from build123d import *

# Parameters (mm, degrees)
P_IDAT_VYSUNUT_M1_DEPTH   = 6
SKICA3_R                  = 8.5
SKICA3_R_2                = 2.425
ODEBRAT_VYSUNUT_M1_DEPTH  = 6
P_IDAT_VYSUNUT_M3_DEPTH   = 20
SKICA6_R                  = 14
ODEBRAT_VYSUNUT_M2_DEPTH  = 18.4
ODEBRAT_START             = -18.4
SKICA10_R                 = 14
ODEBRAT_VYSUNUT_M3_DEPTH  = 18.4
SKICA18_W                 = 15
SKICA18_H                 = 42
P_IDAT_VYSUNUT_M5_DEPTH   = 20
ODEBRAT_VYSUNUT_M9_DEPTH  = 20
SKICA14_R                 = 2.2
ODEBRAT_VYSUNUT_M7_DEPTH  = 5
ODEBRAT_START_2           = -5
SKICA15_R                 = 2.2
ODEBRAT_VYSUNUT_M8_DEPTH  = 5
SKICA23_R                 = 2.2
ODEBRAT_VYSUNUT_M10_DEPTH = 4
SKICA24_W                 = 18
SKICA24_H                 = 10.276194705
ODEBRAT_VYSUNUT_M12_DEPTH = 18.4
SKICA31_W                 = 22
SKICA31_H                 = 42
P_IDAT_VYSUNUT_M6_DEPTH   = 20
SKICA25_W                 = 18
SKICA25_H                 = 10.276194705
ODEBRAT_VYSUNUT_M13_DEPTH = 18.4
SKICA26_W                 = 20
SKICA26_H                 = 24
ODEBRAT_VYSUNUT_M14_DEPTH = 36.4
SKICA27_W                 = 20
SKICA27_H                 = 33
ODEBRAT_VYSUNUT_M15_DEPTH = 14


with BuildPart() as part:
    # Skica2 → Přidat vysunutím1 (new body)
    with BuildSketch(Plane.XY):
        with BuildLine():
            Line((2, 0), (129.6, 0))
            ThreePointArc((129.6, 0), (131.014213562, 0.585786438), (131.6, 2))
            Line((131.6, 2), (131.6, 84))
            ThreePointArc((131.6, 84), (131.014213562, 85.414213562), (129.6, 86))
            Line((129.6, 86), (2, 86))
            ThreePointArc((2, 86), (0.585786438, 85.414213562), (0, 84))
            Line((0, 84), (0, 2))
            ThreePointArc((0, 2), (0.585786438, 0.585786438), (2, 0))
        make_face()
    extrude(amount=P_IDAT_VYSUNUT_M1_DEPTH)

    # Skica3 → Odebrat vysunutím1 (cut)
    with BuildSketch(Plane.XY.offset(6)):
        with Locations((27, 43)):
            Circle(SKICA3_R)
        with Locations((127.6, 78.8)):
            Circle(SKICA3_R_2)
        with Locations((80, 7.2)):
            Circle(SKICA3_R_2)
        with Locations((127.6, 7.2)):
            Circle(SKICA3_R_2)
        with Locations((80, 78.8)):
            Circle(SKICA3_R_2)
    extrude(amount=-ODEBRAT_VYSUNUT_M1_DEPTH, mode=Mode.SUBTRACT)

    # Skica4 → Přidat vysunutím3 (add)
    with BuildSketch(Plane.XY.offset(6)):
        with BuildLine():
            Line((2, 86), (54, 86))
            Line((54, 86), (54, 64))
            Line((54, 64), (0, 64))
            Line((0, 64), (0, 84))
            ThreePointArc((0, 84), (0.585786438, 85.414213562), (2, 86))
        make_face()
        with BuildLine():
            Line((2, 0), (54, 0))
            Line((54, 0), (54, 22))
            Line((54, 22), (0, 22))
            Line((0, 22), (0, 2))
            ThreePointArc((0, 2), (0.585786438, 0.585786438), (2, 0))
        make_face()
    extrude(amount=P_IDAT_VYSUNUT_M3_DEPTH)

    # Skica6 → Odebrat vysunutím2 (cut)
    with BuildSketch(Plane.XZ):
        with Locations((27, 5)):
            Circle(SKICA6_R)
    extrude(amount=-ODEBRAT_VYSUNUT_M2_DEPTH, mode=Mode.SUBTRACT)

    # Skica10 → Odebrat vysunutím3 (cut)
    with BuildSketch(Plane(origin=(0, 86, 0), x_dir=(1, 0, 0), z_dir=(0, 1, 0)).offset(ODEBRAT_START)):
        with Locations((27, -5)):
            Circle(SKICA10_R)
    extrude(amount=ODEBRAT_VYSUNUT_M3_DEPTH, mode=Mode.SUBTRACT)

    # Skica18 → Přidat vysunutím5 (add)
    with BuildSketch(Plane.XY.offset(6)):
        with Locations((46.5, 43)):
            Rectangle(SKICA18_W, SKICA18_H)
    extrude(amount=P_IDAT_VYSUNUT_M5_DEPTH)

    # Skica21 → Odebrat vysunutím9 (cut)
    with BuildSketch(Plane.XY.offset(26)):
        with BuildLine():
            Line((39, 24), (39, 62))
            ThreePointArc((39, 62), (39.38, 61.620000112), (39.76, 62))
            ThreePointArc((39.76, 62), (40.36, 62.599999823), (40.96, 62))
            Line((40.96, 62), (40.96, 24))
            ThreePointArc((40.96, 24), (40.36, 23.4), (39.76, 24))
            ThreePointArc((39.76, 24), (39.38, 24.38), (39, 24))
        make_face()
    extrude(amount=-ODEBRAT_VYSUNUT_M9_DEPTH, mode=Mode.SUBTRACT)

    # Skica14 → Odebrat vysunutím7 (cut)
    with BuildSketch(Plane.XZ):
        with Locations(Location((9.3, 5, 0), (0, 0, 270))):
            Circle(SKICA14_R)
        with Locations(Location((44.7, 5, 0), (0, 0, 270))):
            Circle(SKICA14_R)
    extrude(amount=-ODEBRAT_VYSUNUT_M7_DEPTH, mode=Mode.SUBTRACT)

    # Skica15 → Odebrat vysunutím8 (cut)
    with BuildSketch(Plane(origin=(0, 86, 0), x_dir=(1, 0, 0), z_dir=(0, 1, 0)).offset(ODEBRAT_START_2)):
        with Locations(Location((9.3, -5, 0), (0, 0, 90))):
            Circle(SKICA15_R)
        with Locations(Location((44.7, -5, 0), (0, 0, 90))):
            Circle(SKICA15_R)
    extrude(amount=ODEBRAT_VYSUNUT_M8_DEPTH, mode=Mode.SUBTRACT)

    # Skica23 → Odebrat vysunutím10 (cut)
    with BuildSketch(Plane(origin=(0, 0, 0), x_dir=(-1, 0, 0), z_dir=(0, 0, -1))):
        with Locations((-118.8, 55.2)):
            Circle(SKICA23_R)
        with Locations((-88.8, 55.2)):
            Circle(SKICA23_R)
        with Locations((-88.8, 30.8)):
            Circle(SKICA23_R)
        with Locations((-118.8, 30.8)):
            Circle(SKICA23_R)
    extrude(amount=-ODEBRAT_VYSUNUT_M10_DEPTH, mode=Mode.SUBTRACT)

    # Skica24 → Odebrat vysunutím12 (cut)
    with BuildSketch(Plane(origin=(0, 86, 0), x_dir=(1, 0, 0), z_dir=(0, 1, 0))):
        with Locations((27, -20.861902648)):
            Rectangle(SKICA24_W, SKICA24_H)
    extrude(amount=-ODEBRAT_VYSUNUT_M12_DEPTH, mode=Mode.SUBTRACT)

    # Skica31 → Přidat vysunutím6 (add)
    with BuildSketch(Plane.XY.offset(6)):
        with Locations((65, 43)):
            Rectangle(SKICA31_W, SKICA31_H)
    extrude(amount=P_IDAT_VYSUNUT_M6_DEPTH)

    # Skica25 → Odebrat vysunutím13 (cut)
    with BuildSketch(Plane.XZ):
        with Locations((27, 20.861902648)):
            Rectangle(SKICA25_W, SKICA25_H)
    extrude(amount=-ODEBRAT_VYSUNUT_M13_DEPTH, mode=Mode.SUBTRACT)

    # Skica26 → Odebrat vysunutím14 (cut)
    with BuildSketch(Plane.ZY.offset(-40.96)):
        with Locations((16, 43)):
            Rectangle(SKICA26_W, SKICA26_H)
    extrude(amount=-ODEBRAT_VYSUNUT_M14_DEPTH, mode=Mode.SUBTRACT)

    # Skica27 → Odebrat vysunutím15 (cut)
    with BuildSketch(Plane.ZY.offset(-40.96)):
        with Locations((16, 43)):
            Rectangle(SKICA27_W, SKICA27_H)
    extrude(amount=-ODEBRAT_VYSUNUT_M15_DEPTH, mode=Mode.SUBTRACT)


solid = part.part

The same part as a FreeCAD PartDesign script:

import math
import FreeCAD as App
import Part
import Sketcher
from FreeCAD import Vector
Q = App.Units.Quantity

doc = App.newDocument("Part")
body = doc.addObject("PartDesign::Body", "Body")

# Sketch on XY plane
sketch1 = body.newObject("Sketcher::SketchObject", "Sketch")
sketch1.AttachmentSupport = (doc.getObject("XY_Plane"), [""])
sketch1.MapMode = "FlatFace"
sketch1.addGeometry(Part.LineSegment(Vector(2, 0, 0), Vector(129.6, 0, 0)), False)
sketch1.addGeometry(Part.ArcOfCircle(Part.Circle(Vector(129.6, 2, 0), Vector(0, 0, 1), 2), math.radians(-90), math.radians(0)), False)
sketch1.addGeometry(Part.LineSegment(Vector(131.6, 2, 0), Vector(131.6, 84, 0)), False)
sketch1.addGeometry(Part.ArcOfCircle(Part.Circle(Vector(129.6, 84, 0), Vector(0, 0, 1), 2), math.radians(0), math.radians(90)), False)
sketch1.addGeometry(Part.LineSegment(Vector(129.6, 86, 0), Vector(2, 86, 0)), False)
sketch1.addGeometry(Part.ArcOfCircle(Part.Circle(Vector(2, 84, 0), Vector(0, 0, 1), 2), math.radians(90), math.radians(180)), False)
sketch1.addGeometry(Part.LineSegment(Vector(0, 84, 0), Vector(0, 2, 0)), False)
sketch1.addGeometry(Part.ArcOfCircle(Part.Circle(Vector(2, 2, 0), Vector(0, 0, 1), 2), math.radians(-180), math.radians(-90)), False)
sketch1.addConstraint(Sketcher.Constraint("Tangent", 0, 2, 1, 1))
sketch1.addConstraint(Sketcher.Constraint("Tangent", 1, 2, 2, 1))
sketch1.addConstraint(Sketcher.Constraint("Tangent", 2, 2, 3, 1))
sketch1.addConstraint(Sketcher.Constraint("Tangent", 3, 2, 4, 1))
sketch1.addConstraint(Sketcher.Constraint("Tangent", 4, 2, 5, 1))
sketch1.addConstraint(Sketcher.Constraint("Tangent", 5, 2, 6, 1))
sketch1.addConstraint(Sketcher.Constraint("Tangent", 6, 2, 7, 1))
sketch1.addConstraint(Sketcher.Constraint("Tangent", 7, 2, 0, 1))
sketch1.addConstraint(Sketcher.Constraint("Horizontal", 0))
sketch1.addConstraint(Sketcher.Constraint("Vertical", 2))
sketch1.addConstraint(Sketcher.Constraint("Horizontal", 4))
sketch1.addConstraint(Sketcher.Constraint("Vertical", 6))
sketch1.addConstraint(Sketcher.Constraint("Equal", 1, 3))
sketch1.addConstraint(Sketcher.Constraint("Equal", 3, 5))
sketch1.addConstraint(Sketcher.Constraint("Equal", 5, 7))
sketch1.addConstraint(Sketcher.Constraint("PointOnObject", 0, 2, -1))
sketch1.addConstraint(Sketcher.Constraint("PointOnObject", 5, 2, -2))
sketch1.addConstraint(Sketcher.Constraint("Radius", 1, Q("2 mm")))
sketch1.addConstraint(Sketcher.Constraint("DistanceY", 2, 1, 2, 2, Q("82 mm")))
sketch1.addConstraint(Sketcher.Constraint("DistanceX", 0, 1, 0, 2, Q("127.6 mm")))
pad1 = body.newObject("PartDesign::Pad", "Pad")
pad1.Profile = sketch1
pad1.Length = 6

# Sketch on XY plane
sketch2 = body.newObject("Sketcher::SketchObject", "Sketch001")
sketch2.AttachmentSupport = (doc.getObject("XY_Plane"), [""])
sketch2.MapMode = "FlatFace"
sketch2.AttachmentOffset = App.Placement(Vector(0, 0, 6), App.Rotation())
sketch2.addGeometry(Part.Circle(Vector(27, 43, 0), Vector(0, 0, 1), 8.5), False)
sketch2.addGeometry(Part.Circle(Vector(127.6, 78.8, 0), Vector(0, 0, 1), 2.4), False)
sketch2.addGeometry(Part.Circle(Vector(80, 7.2, 0), Vector(0, 0, 1), 2.4), False)
sketch2.addGeometry(Part.Circle(Vector(127.6, 7.2, 0), Vector(0, 0, 1), 2.4), False)
sketch2.addGeometry(Part.Circle(Vector(80, 78.8, 0), Vector(0, 0, 1), 2.4), False)
sketch2.addConstraint(Sketcher.Constraint("Equal", 1, 2))
sketch2.addConstraint(Sketcher.Constraint("Equal", 2, 3))
sketch2.addConstraint(Sketcher.Constraint("Equal", 3, 4))
sketch2.addConstraint(Sketcher.Constraint("Horizontal", 2, 3, 3, 3))
sketch2.addConstraint(Sketcher.Constraint("Horizontal", 1, 3, 4, 3))
sketch2.addConstraint(Sketcher.Constraint("Vertical", 1, 3, 3, 3))
sketch2.addConstraint(Sketcher.Constraint("Vertical", 2, 3, 4, 3))
sketch2.addConstraint(Sketcher.Constraint("Diameter", 0, Q("17 mm")))
sketch2.addConstraint(Sketcher.Constraint("Diameter", 1, Q("4.85 mm")))
sketch2.addConstraint(Sketcher.Constraint("DistanceX", -1, 1, 0, 3, Q("27 mm")))
sketch2.addConstraint(Sketcher.Constraint("DistanceY", -1, 1, 0, 3, Q("43 mm")))
sketch2.addConstraint(Sketcher.Constraint("DistanceX", -1, 1, 2, 3, Q("80 mm")))
sketch2.addConstraint(Sketcher.Constraint("DistanceX", -1, 1, 1, 3, Q("127.6 mm")))
sketch2.addConstraint(Sketcher.Constraint("DistanceY", -1, 1, 1, 3, Q("78.8 mm")))
sketch2.addConstraint(Sketcher.Constraint("DistanceY", -1, 1, 2, 3, Q("7.2 mm")))
pocket1 = body.newObject("PartDesign::Pocket", "Pocket")
pocket1.Profile = sketch2
pocket1.Length = 6

# Sketch on XY plane
sketch3 = body.newObject("Sketcher::SketchObject", "Sketch002")
sketch3.AttachmentSupport = (doc.getObject("XY_Plane"), [""])
sketch3.MapMode = "FlatFace"
sketch3.AttachmentOffset = App.Placement(Vector(0, 0, 6), App.Rotation())
sketch3.addGeometry(Part.LineSegment(Vector(54, 86, 0), Vector(2, 86, 0)), False)
sketch3.addGeometry(Part.ArcOfCircle(Part.Circle(Vector(2, 84, 0), Vector(0, 0, 1), 2), math.radians(90), math.radians(180)), False)
sketch3.addGeometry(Part.LineSegment(Vector(0, 84, 0), Vector(0, 64, 0)), False)
sketch3.addGeometry(Part.LineSegment(Vector(0, 64, 0), Vector(54, 64, 0)), False)
sketch3.addGeometry(Part.LineSegment(Vector(54, 64, 0), Vector(54, 86, 0)), False)
sketch3.addGeometry(Part.LineSegment(Vector(2, 0, 0), Vector(54, 0, 0)), False)
sketch3.addGeometry(Part.LineSegment(Vector(54, 0, 0), Vector(54, 22, 0)), False)
sketch3.addGeometry(Part.LineSegment(Vector(54, 22, 0), Vector(0, 22, 0)), False)
sketch3.addGeometry(Part.LineSegment(Vector(0, 22, 0), Vector(0, 2, 0)), False)
sketch3.addGeometry(Part.ArcOfCircle(Part.Circle(Vector(2, 2, 0), Vector(0, 0, 1), 2), math.radians(-180), math.radians(-90)), False)
sketch3.addConstraint(Sketcher.Constraint("Tangent", 0, 2, 1, 1))
sketch3.addConstraint(Sketcher.Constraint("Tangent", 1, 2, 2, 1))
sketch3.addConstraint(Sketcher.Constraint("Coincident", 2, 2, 3, 1))
sketch3.addConstraint(Sketcher.Constraint("Coincident", 3, 2, 4, 1))
sketch3.addConstraint(Sketcher.Constraint("Coincident", 4, 2, 0, 1))
sketch3.addConstraint(Sketcher.Constraint("Coincident", 5, 2, 6, 1))
sketch3.addConstraint(Sketcher.Constraint("Coincident", 6, 2, 7, 1))
sketch3.addConstraint(Sketcher.Constraint("Coincident", 7, 2, 8, 1))
sketch3.addConstraint(Sketcher.Constraint("Tangent", 8, 2, 9, 1))
sketch3.addConstraint(Sketcher.Constraint("Tangent", 9, 2, 5, 1))
sketch3.addConstraint(Sketcher.Constraint("Horizontal", 0))
sketch3.addConstraint(Sketcher.Constraint("Vertical", 2))
sketch3.addConstraint(Sketcher.Constraint("Horizontal", 3))
sketch3.addConstraint(Sketcher.Constraint("Vertical", 4))
sketch3.addConstraint(Sketcher.Constraint("Horizontal", 5))
sketch3.addConstraint(Sketcher.Constraint("Vertical", 6))
sketch3.addConstraint(Sketcher.Constraint("Horizontal", 7))
sketch3.addConstraint(Sketcher.Constraint("Vertical", 8))
sketch3.addConstraint(Sketcher.Constraint("Equal", 1, 9))
sketch3.addConstraint(Sketcher.Constraint("PointOnObject", 1, 2, -2))
sketch3.addConstraint(Sketcher.Constraint("PointOnObject", 5, 2, -1))
sketch3.addConstraint(Sketcher.Constraint("PointOnObject", 7, 2, -2))
sketch3.addConstraint(Sketcher.Constraint("Vertical", 4, 2, 5, 2))
sketch3.addConstraint(Sketcher.Constraint("Equal", 4, 6))
sketch3.addConstraint(Sketcher.Constraint("Radius", 1, Q("2 mm")))
sketch3.addConstraint(Sketcher.Constraint("DistanceX", 0, 2, 0, 1, Q("52 mm")))
sketch3.addConstraint(Sketcher.Constraint("DistanceY", 2, 2, 2, 1, Q("20 mm")))
sketch3.addConstraint(Sketcher.Constraint("DistanceY", -1, 1, 1, 3, Q("84 mm")))
pad2 = body.newObject("PartDesign::Pad", "Pad001")
pad2.Profile = sketch3
pad2.Length = 20

# Sketch on XZ plane
sketch4 = body.newObject("Sketcher::SketchObject", "Sketch003")
sketch4.AttachmentSupport = (doc.getObject("XZ_Plane"), [""])
sketch4.MapMode = "FlatFace"
sketch4.addGeometry(Part.Circle(Vector(27, 5, 0), Vector(0, 0, 1), 14), False)
sketch4.addConstraint(Sketcher.Constraint("Diameter", 0, Q("28 mm")))
sketch4.addConstraint(Sketcher.Constraint("DistanceX", -1, 1, 0, 3, Q("27 mm")))
sketch4.addConstraint(Sketcher.Constraint("DistanceY", -1, 1, 0, 3, Q("5 mm")))
pocket2 = body.newObject("PartDesign::Pocket", "Pocket001")
pocket2.Profile = sketch4
pocket2.Length = 18.4

# Sketch on XZ plane
sketch5 = body.newObject("Sketcher::SketchObject", "Sketch004")
sketch5.AttachmentSupport = (doc.getObject("XZ_Plane"), [""])
sketch5.MapMode = "FlatFace"
sketch5.AttachmentOffset = App.Placement(Vector(0, 0, -67.6), App.Rotation())
sketch5.addGeometry(Part.Circle(Vector(27, 5, 0), Vector(0, 0, 1), 14), False)
sketch5.addConstraint(Sketcher.Constraint("Diameter", 0, Q("28 mm")))
sketch5.addConstraint(Sketcher.Constraint("DistanceX", -1, 1, 0, 3, Q("27 mm")))
sketch5.addConstraint(Sketcher.Constraint("DistanceY", -1, 1, 0, 3, Q("5 mm")))
pocket3 = body.newObject("PartDesign::Pocket", "Pocket002")
pocket3.Profile = sketch5
pocket3.Length = 18.4

# Sketch on XY plane
sketch6 = body.newObject("Sketcher::SketchObject", "Sketch005")
sketch6.AttachmentSupport = (doc.getObject("XY_Plane"), [""])
sketch6.MapMode = "FlatFace"
sketch6.AttachmentOffset = App.Placement(Vector(0, 0, 6), App.Rotation())
sketch6.addGeometry(Part.LineSegment(Vector(39, 64, 0), Vector(39, 22, 0)), False)
sketch6.addGeometry(Part.LineSegment(Vector(39, 22, 0), Vector(54, 22, 0)), False)
sketch6.addGeometry(Part.LineSegment(Vector(54, 22, 0), Vector(54, 64, 0)), False)
sketch6.addGeometry(Part.LineSegment(Vector(54, 64, 0), Vector(39, 64, 0)), False)
sketch6.addConstraint(Sketcher.Constraint("Coincident", 0, 2, 1, 1))
sketch6.addConstraint(Sketcher.Constraint("Coincident", 1, 2, 2, 1))
sketch6.addConstraint(Sketcher.Constraint("Coincident", 2, 2, 3, 1))
sketch6.addConstraint(Sketcher.Constraint("Coincident", 3, 2, 0, 1))
sketch6.addConstraint(Sketcher.Constraint("Vertical", 0))
sketch6.addConstraint(Sketcher.Constraint("Horizontal", 1))
sketch6.addConstraint(Sketcher.Constraint("Vertical", 2))
sketch6.addConstraint(Sketcher.Constraint("Horizontal", 3))
sketch6.addConstraint(Sketcher.Constraint("DistanceX", 1, 1, 1, 2, Q("15 mm")))
sketch6.addConstraint(Sketcher.Constraint("DistanceY", 0, 2, 0, 1, Q("42 mm")))
sketch6.addConstraint(Sketcher.Constraint("DistanceX", -1, 1, 0, 2, Q("39 mm")))
sketch6.addConstraint(Sketcher.Constraint("DistanceY", -1, 1, 0, 2, Q("22 mm")))
pad3 = body.newObject("PartDesign::Pad", "Pad002")
pad3.Profile = sketch6
pad3.Length = 20

# Sketch on XY plane
sketch7 = body.newObject("Sketcher::SketchObject", "Sketch006")
sketch7.AttachmentSupport = (doc.getObject("XY_Plane"), [""])
sketch7.MapMode = "FlatFace"
sketch7.AttachmentOffset = App.Placement(Vector(0, 0, 26), App.Rotation())
sketch7.addGeometry(Part.LineSegment(Vector(39, 62, 0), Vector(39, 24, 0)), False)
sketch7.addGeometry(Part.ArcOfCircle(Part.Circle(Vector(39.38, 24, 0), Vector(0, 0, 1), 0.38), math.radians(0), math.radians(180)), False)
sketch7.addGeometry(Part.ArcOfCircle(Part.Circle(Vector(40.36, 24, 0), Vector(0, 0, 1), 0.6), math.radians(180), math.radians(360)), False)
sketch7.addGeometry(Part.LineSegment(Vector(40.96, 24, 0), Vector(40.96, 62, 0)), False)
sketch7.addGeometry(Part.ArcOfCircle(Part.Circle(Vector(40.36, 62, 0), Vector(0, 0, 1), 0.6), math.radians(0), math.radians(180)), False)
sketch7.addGeometry(Part.ArcOfCircle(Part.Circle(Vector(39.38, 62, 0), Vector(0, 0, 1), 0.38), math.radians(-180), math.radians(0)), False)
sketch7.addConstraint(Sketcher.Constraint("Tangent", 0, 2, 1, 2))
sketch7.addConstraint(Sketcher.Constraint("Tangent", 1, 1, 2, 1))
sketch7.addConstraint(Sketcher.Constraint("Tangent", 2, 2, 3, 1))
sketch7.addConstraint(Sketcher.Constraint("Tangent", 3, 2, 4, 1))
sketch7.addConstraint(Sketcher.Constraint("Tangent", 4, 2, 5, 2))
sketch7.addConstraint(Sketcher.Constraint("Tangent", 5, 1, 0, 1))
sketch7.addConstraint(Sketcher.Constraint("Vertical", 0))
sketch7.addConstraint(Sketcher.Constraint("Vertical", 3))
sketch7.addConstraint(Sketcher.Constraint("Equal", 2, 4))
sketch7.addConstraint(Sketcher.Constraint("Horizontal", 1, 3, 2, 3))
sketch7.addConstraint(Sketcher.Constraint("Horizontal", 4, 3, 5, 3))
sketch7.addConstraint(Sketcher.Constraint("Radius", 2, Q("0.6 mm")))
sketch7.addConstraint(Sketcher.Constraint("DistanceY", 0, 2, 0, 1, Q("38 mm")))
sketch7.addConstraint(Sketcher.Constraint("Radius", 1, Q("0.38 mm")))
sketch7.addConstraint(Sketcher.Constraint("DistanceY", -1, 1, 1, 3, Q("24 mm")))
sketch7.addConstraint(Sketcher.Constraint("DistanceX", -1, 1, 0, 2, Q("39 mm")))
pocket4 = body.newObject("PartDesign::Pocket", "Pocket003")
pocket4.Profile = sketch7
pocket4.Length = 20

# Sketch on XZ plane
sketch8 = body.newObject("Sketcher::SketchObject", "Sketch007")
sketch8.AttachmentSupport = (doc.getObject("XZ_Plane"), [""])
sketch8.MapMode = "FlatFace"
sketch8.addGeometry(Part.Circle(Vector(9.3, 5, 0), Vector(0, 0, 1), 2.2), False)
sketch8.addGeometry(Part.Circle(Vector(44.7, 5, 0), Vector(0, 0, 1), 2.2), False)
sketch8.addConstraint(Sketcher.Constraint("Equal", 0, 1))
sketch8.addConstraint(Sketcher.Constraint("Horizontal", 0, 3, 1, 3))
sketch8.addConstraint(Sketcher.Constraint("Diameter", 0, Q("4.4 mm")))
sketch8.addConstraint(Sketcher.Constraint("DistanceY", -1, 1, 0, 3, Q("5 mm")))
sketch8.addConstraint(Sketcher.Constraint("DistanceX", -1, 1, 0, 3, Q("9.3 mm")))
sketch8.addConstraint(Sketcher.Constraint("DistanceX", -1, 1, 1, 3, Q("44.7 mm")))
pocket5 = body.newObject("PartDesign::Pocket", "Pocket004")
pocket5.Profile = sketch8
pocket5.Length = 5

# Sketch on XZ plane
sketch9 = body.newObject("Sketcher::SketchObject", "Sketch008")
sketch9.AttachmentSupport = (doc.getObject("XZ_Plane"), [""])
sketch9.MapMode = "FlatFace"
sketch9.AttachmentOffset = App.Placement(Vector(0, 0, -81), App.Rotation())
sketch9.addGeometry(Part.Circle(Vector(9.3, 5, 0), Vector(0, 0, 1), 2.2), False)
sketch9.addGeometry(Part.Circle(Vector(44.7, 5, 0), Vector(0, 0, 1), 2.2), False)
sketch9.addConstraint(Sketcher.Constraint("Equal", 0, 1))
sketch9.addConstraint(Sketcher.Constraint("Horizontal", 0, 3, 1, 3))
sketch9.addConstraint(Sketcher.Constraint("Diameter", 0, Q("4.4 mm")))
sketch9.addConstraint(Sketcher.Constraint("DistanceY", -1, 1, 0, 3, Q("5 mm")))
sketch9.addConstraint(Sketcher.Constraint("DistanceX", -1, 1, 0, 3, Q("9.3 mm")))
sketch9.addConstraint(Sketcher.Constraint("DistanceX", -1, 1, 1, 3, Q("44.7 mm")))
pocket6 = body.newObject("PartDesign::Pocket", "Pocket005")
pocket6.Profile = sketch9
pocket6.Length = 5

# Sketch on XY plane
sketch10 = body.newObject("Sketcher::SketchObject", "Sketch009")
sketch10.AttachmentSupport = (doc.getObject("XY_Plane"), [""])
sketch10.MapMode = "FlatFace"
sketch10.addGeometry(Part.Circle(Vector(118.8, 55.2, 0), Vector(0, 0, 1), 2.2), False)
sketch10.addGeometry(Part.Circle(Vector(88.8, 55.2, 0), Vector(0, 0, 1), 2.2), False)
sketch10.addGeometry(Part.Circle(Vector(88.8, 30.8, 0), Vector(0, 0, 1), 2.2), False)
sketch10.addGeometry(Part.Circle(Vector(118.8, 30.8, 0), Vector(0, 0, 1), 2.2), False)
sketch10.addConstraint(Sketcher.Constraint("Equal", 0, 1))
sketch10.addConstraint(Sketcher.Constraint("Equal", 1, 2))
sketch10.addConstraint(Sketcher.Constraint("Equal", 2, 3))
sketch10.addConstraint(Sketcher.Constraint("Horizontal", 0, 3, 1, 3))
sketch10.addConstraint(Sketcher.Constraint("Horizontal", 2, 3, 3, 3))
sketch10.addConstraint(Sketcher.Constraint("Vertical", 1, 3, 2, 3))
sketch10.addConstraint(Sketcher.Constraint("Vertical", 0, 3, 3, 3))
sketch10.addConstraint(Sketcher.Constraint("Diameter", 0, Q("4.4 mm")))
sketch10.addConstraint(Sketcher.Constraint("DistanceX", 1, 3, 0, 3, Q("30 mm")))
sketch10.addConstraint(Sketcher.Constraint("DistanceX", -1, 1, 0, 3, Q("118.8 mm")))
sketch10.addConstraint(Sketcher.Constraint("DistanceY", -1, 1, 0, 3, Q("55.2 mm")))
sketch10.addConstraint(Sketcher.Constraint("DistanceY", -1, 1, 2, 3, Q("30.8 mm")))
pocket7 = body.newObject("PartDesign::Pocket", "Pocket006")
pocket7.Profile = sketch10
pocket7.Length = 4
pocket7.Reversed = True

# Sketch on XZ plane
sketch11 = body.newObject("Sketcher::SketchObject", "Sketch010")
sketch11.AttachmentSupport = (doc.getObject("XZ_Plane"), [""])
sketch11.MapMode = "FlatFace"
sketch11.AttachmentOffset = App.Placement(Vector(0, 0, -86), App.Rotation())
sketch11.addGeometry(Part.LineSegment(Vector(18, 16, 0), Vector(18, 26, 0)), False)
sketch11.addGeometry(Part.LineSegment(Vector(18, 26, 0), Vector(36, 26, 0)), False)
sketch11.addGeometry(Part.LineSegment(Vector(36, 26, 0), Vector(36, 16, 0)), False)
sketch11.addGeometry(Part.LineSegment(Vector(36, 16, 0), Vector(18, 16, 0)), False)
sketch11.addConstraint(Sketcher.Constraint("Coincident", 0, 2, 1, 1))
sketch11.addConstraint(Sketcher.Constraint("Coincident", 1, 2, 2, 1))
sketch11.addConstraint(Sketcher.Constraint("Coincident", 2, 2, 3, 1))
sketch11.addConstraint(Sketcher.Constraint("Coincident", 3, 2, 0, 1))
sketch11.addConstraint(Sketcher.Constraint("Vertical", 0))
sketch11.addConstraint(Sketcher.Constraint("Horizontal", 1))
sketch11.addConstraint(Sketcher.Constraint("Vertical", 2))
sketch11.addConstraint(Sketcher.Constraint("Horizontal", 3))
sketch11.addConstraint(Sketcher.Constraint("DistanceX", 1, 1, 1, 2, Q("18 mm")))
sketch11.addConstraint(Sketcher.Constraint("DistanceX", -1, 1, 0, 2, Q("18 mm")))
sketch11.addConstraint(Sketcher.Constraint("DistanceY", -1, 1, 0, 2, Q("26 mm")))
sketch11.addConstraint(Sketcher.Constraint("DistanceY", 0, 1, 0, 2, Q("10.276195 mm")))
pocket8 = body.newObject("PartDesign::Pocket", "Pocket007")
pocket8.Profile = sketch11
pocket8.Length = 18.4
pocket8.Reversed = True

# Sketch on XY plane
sketch12 = body.newObject("Sketcher::SketchObject", "Sketch011")
sketch12.AttachmentSupport = (doc.getObject("XY_Plane"), [""])
sketch12.MapMode = "FlatFace"
sketch12.AttachmentOffset = App.Placement(Vector(0, 0, 6), App.Rotation())
sketch12.addGeometry(Part.LineSegment(Vector(54, 64, 0), Vector(54, 22, 0)), False)
sketch12.addGeometry(Part.LineSegment(Vector(54, 22, 0), Vector(76, 22, 0)), False)
sketch12.addGeometry(Part.LineSegment(Vector(76, 22, 0), Vector(76, 64, 0)), False)
sketch12.addGeometry(Part.LineSegment(Vector(76, 64, 0), Vector(54, 64, 0)), False)
sketch12.addConstraint(Sketcher.Constraint("Coincident", 0, 2, 1, 1))
sketch12.addConstraint(Sketcher.Constraint("Coincident", 1, 2, 2, 1))
sketch12.addConstraint(Sketcher.Constraint("Coincident", 2, 2, 3, 1))
sketch12.addConstraint(Sketcher.Constraint("Coincident", 3, 2, 0, 1))
sketch12.addConstraint(Sketcher.Constraint("Vertical", 0))
sketch12.addConstraint(Sketcher.Constraint("Horizontal", 1))
sketch12.addConstraint(Sketcher.Constraint("Vertical", 2))
sketch12.addConstraint(Sketcher.Constraint("Horizontal", 3))
sketch12.addConstraint(Sketcher.Constraint("DistanceX", 1, 1, 1, 2, Q("22 mm")))
sketch12.addConstraint(Sketcher.Constraint("DistanceY", 0, 2, 0, 1, Q("42 mm")))
sketch12.addConstraint(Sketcher.Constraint("DistanceX", -1, 1, 0, 2, Q("54 mm")))
sketch12.addConstraint(Sketcher.Constraint("DistanceY", -1, 1, 0, 2, Q("22 mm")))
pad4 = body.newObject("PartDesign::Pad", "Pad003")
pad4.Profile = sketch12
pad4.Length = 20

# Sketch on XZ plane
sketch13 = body.newObject("Sketcher::SketchObject", "Sketch012")
sketch13.AttachmentSupport = (doc.getObject("XZ_Plane"), [""])
sketch13.MapMode = "FlatFace"
sketch13.addGeometry(Part.LineSegment(Vector(18, 26, 0), Vector(18, 16, 0)), False)
sketch13.addGeometry(Part.LineSegment(Vector(18, 16, 0), Vector(36, 16, 0)), False)
sketch13.addGeometry(Part.LineSegment(Vector(36, 16, 0), Vector(36, 26, 0)), False)
sketch13.addGeometry(Part.LineSegment(Vector(36, 26, 0), Vector(18, 26, 0)), False)
sketch13.addConstraint(Sketcher.Constraint("Coincident", 0, 2, 1, 1))
sketch13.addConstraint(Sketcher.Constraint("Coincident", 1, 2, 2, 1))
sketch13.addConstraint(Sketcher.Constraint("Coincident", 2, 2, 3, 1))
sketch13.addConstraint(Sketcher.Constraint("Coincident", 3, 2, 0, 1))
sketch13.addConstraint(Sketcher.Constraint("Vertical", 0))
sketch13.addConstraint(Sketcher.Constraint("Horizontal", 1))
sketch13.addConstraint(Sketcher.Constraint("Vertical", 2))
sketch13.addConstraint(Sketcher.Constraint("Horizontal", 3))
sketch13.addConstraint(Sketcher.Constraint("DistanceX", 1, 1, 1, 2, Q("18 mm")))
sketch13.addConstraint(Sketcher.Constraint("DistanceX", -1, 1, 0, 2, Q("18 mm")))
sketch13.addConstraint(Sketcher.Constraint("DistanceY", -1, 1, 2, 2, Q("26 mm")))
sketch13.addConstraint(Sketcher.Constraint("DistanceY", 0, 2, 0, 1, Q("10.276195 mm")))
pocket9 = body.newObject("PartDesign::Pocket", "Pocket008")
pocket9.Profile = sketch13
pocket9.Length = 18.4

# Sketch on YZ plane
sketch14 = body.newObject("Sketcher::SketchObject", "Sketch013")
sketch14.AttachmentSupport = (doc.getObject("YZ_Plane"), [""])
sketch14.MapMode = "FlatFace"
sketch14.AttachmentOffset = App.Placement(Vector(0, 0, 40.96), App.Rotation())
sketch14.addGeometry(Part.LineSegment(Vector(55, 6, 0), Vector(31, 6, 0)), False)
sketch14.addGeometry(Part.LineSegment(Vector(31, 6, 0), Vector(31, 26, 0)), False)
sketch14.addGeometry(Part.LineSegment(Vector(31, 26, 0), Vector(55, 26, 0)), False)
sketch14.addGeometry(Part.LineSegment(Vector(55, 26, 0), Vector(55, 6, 0)), False)
sketch14.addConstraint(Sketcher.Constraint("Coincident", 0, 2, 1, 1))
sketch14.addConstraint(Sketcher.Constraint("Coincident", 1, 2, 2, 1))
sketch14.addConstraint(Sketcher.Constraint("Coincident", 2, 2, 3, 1))
sketch14.addConstraint(Sketcher.Constraint("Coincident", 3, 2, 0, 1))
sketch14.addConstraint(Sketcher.Constraint("Horizontal", 0))
sketch14.addConstraint(Sketcher.Constraint("Vertical", 1))
sketch14.addConstraint(Sketcher.Constraint("Horizontal", 2))
sketch14.addConstraint(Sketcher.Constraint("Vertical", 3))
sketch14.addConstraint(Sketcher.Constraint("DistanceX", 0, 2, 0, 1, Q("24 mm")))
sketch14.addConstraint(Sketcher.Constraint("DistanceY", 1, 1, 1, 2, Q("20 mm")))
sketch14.addConstraint(Sketcher.Constraint("DistanceX", -1, 1, 0, 2, Q("31 mm")))
sketch14.addConstraint(Sketcher.Constraint("DistanceY", -1, 1, 0, 2, Q("6 mm")))
pocket10 = body.newObject("PartDesign::Pocket", "Pocket009")
pocket10.Profile = sketch14
pocket10.Length = 36.4
pocket10.Reversed = True

# Sketch on YZ plane
sketch15 = body.newObject("Sketcher::SketchObject", "Sketch014")
sketch15.AttachmentSupport = (doc.getObject("YZ_Plane"), [""])
sketch15.MapMode = "FlatFace"
sketch15.AttachmentOffset = App.Placement(Vector(0, 0, 40.96), App.Rotation())
sketch15.addGeometry(Part.LineSegment(Vector(60, 6, 0), Vector(26, 6, 0)), False)
sketch15.addGeometry(Part.LineSegment(Vector(26, 6, 0), Vector(26, 26, 0)), False)
sketch15.addGeometry(Part.LineSegment(Vector(26, 26, 0), Vector(60, 26, 0)), False)
sketch15.addGeometry(Part.LineSegment(Vector(60, 26, 0), Vector(60, 6, 0)), False)
sketch15.addConstraint(Sketcher.Constraint("Coincident", 0, 2, 1, 1))
sketch15.addConstraint(Sketcher.Constraint("Coincident", 1, 2, 2, 1))
sketch15.addConstraint(Sketcher.Constraint("Coincident", 2, 2, 3, 1))
sketch15.addConstraint(Sketcher.Constraint("Coincident", 3, 2, 0, 1))
sketch15.addConstraint(Sketcher.Constraint("Horizontal", 0))
sketch15.addConstraint(Sketcher.Constraint("Vertical", 1))
sketch15.addConstraint(Sketcher.Constraint("Horizontal", 2))
sketch15.addConstraint(Sketcher.Constraint("Vertical", 3))
sketch15.addConstraint(Sketcher.Constraint("DistanceX", 0, 2, 0, 1, Q("33 mm")))
sketch15.addConstraint(Sketcher.Constraint("DistanceY", 1, 1, 1, 2, Q("20 mm")))
sketch15.addConstraint(Sketcher.Constraint("DistanceY", -1, 1, 0, 2, Q("6 mm")))
sketch15.addConstraint(Sketcher.Constraint("DistanceX", -1, 1, 0, 2, Q("26.5 mm")))
pocket11 = body.newObject("PartDesign::Pocket", "Pocket010")
pocket11.Profile = sketch15
pocket11.Length = 14
pocket11.Reversed = True

doc.recompute()
